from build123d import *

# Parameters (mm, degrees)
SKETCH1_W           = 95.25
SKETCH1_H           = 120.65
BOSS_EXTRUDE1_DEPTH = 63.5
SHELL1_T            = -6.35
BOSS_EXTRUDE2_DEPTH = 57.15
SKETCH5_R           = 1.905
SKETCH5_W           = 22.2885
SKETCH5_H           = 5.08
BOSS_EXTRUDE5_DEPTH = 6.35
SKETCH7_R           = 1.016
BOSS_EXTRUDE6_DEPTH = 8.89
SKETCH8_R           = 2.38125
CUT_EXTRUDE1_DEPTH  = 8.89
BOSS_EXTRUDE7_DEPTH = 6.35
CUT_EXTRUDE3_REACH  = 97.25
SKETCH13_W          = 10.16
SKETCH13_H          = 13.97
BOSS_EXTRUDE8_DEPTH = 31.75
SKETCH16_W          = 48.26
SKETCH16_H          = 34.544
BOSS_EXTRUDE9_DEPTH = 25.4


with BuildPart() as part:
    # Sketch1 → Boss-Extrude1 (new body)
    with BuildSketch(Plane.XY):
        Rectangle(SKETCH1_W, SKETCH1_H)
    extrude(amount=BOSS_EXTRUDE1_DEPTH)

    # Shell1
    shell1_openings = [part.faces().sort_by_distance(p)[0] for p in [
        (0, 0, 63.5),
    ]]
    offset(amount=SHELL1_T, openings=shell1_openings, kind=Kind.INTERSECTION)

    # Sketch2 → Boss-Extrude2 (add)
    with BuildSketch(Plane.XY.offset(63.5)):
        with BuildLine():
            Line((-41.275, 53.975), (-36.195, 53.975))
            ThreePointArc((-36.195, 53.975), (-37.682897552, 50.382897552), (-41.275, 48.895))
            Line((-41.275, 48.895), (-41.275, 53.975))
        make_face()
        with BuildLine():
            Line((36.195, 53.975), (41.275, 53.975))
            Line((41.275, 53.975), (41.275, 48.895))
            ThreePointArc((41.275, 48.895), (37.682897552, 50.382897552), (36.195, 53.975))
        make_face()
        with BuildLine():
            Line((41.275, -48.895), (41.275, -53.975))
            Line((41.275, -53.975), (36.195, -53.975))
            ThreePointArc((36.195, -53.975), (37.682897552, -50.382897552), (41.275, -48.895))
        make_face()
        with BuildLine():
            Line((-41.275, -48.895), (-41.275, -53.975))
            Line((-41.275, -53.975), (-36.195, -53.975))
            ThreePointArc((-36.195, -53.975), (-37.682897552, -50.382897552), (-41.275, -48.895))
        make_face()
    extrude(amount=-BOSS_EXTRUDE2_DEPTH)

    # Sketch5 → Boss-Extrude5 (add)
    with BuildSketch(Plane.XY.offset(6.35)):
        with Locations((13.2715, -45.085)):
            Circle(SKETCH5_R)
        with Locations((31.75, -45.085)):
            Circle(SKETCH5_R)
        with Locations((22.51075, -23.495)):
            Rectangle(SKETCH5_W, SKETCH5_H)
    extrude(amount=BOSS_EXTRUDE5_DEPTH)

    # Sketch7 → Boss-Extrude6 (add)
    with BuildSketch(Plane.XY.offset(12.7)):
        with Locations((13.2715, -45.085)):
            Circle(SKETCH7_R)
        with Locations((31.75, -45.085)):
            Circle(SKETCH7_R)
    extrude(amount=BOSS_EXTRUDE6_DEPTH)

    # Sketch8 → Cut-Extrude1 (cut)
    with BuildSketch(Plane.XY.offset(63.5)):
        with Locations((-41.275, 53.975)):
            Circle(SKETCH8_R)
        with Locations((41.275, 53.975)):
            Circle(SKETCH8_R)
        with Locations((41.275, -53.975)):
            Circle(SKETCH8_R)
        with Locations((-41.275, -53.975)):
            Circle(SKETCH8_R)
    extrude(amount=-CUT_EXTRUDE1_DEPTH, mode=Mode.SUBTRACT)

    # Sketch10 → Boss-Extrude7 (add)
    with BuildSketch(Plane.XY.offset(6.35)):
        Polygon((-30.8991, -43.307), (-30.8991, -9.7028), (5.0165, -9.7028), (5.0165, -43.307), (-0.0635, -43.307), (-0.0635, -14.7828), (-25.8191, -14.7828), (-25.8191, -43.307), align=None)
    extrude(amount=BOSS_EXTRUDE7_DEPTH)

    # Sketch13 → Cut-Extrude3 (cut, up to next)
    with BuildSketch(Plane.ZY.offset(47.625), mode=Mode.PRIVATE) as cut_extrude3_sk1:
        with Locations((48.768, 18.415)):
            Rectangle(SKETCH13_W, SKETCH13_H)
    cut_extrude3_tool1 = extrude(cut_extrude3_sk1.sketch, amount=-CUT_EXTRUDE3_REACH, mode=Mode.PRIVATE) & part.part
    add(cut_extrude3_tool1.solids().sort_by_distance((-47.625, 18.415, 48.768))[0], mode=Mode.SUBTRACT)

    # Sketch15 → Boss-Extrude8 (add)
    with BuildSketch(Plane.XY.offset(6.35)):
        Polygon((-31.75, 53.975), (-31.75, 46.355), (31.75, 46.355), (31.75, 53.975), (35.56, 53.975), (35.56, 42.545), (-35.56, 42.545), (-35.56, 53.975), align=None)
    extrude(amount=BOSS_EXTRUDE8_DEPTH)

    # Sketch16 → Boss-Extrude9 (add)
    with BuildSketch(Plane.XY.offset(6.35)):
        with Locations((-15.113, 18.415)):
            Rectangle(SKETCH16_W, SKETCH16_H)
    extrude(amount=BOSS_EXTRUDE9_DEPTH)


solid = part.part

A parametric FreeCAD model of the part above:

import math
import FreeCAD as App
import Part
import Sketcher
Q = App.Units.Quantity


def faces_at(feature, points):
    """Names of the faces that lie closest to the given points."""
    faces = feature.Shape.Faces
    near = lambda p: min(range(len(faces)), key=lambda i: faces[i].distToShape(Part.Vertex(*p))[0])
    return sorted({f"Face{near(p) + 1}" for p in points})

doc = App.newDocument("Part")
body = doc.addObject("PartDesign::Body", "Body")

sketch1 = body.newObject("Sketcher::SketchObject", "Sketch")
sketch1.AttachmentSupport = (doc.getObject("XY_Plane"), [""])
sketch1.MapMode = "FlatFace"
sketch1.addGeometry([
    Part.LineSegment(App.Vector(-48, 60, 0), App.Vector(-48, -60, 0)),
    Part.LineSegment(App.Vector(-48, -60, 0), App.Vector(48, -60, 0)),
    Part.LineSegment(App.Vector(48, -60, 0), App.Vector(48, 60, 0)),
    Part.LineSegment(App.Vector(48, 60, 0), App.Vector(-48, 60, 0)),
], False)
sketch1.addConstraint([
    Sketcher.Constraint("Coincident", 0, 2, 1, 1),
    Sketcher.Constraint("Coincident", 1, 2, 2, 1),
    Sketcher.Constraint("Coincident", 2, 2, 3, 1),
    Sketcher.Constraint("Coincident", 3, 2, 0, 1),
    Sketcher.Constraint("Vertical", 0),
    Sketcher.Constraint("Horizontal", 1),
    Sketcher.Constraint("Vertical", 2),
    Sketcher.Constraint("Horizontal", 3),
    Sketcher.Constraint("Symmetric", 0, 2, 2, 2, -1, 1),
    Sketcher.Constraint("DistanceX", 1, 1, 1, 2, Q("3.75 in")),
    Sketcher.Constraint("DistanceY", 0, 2, 0, 1, Q("4.75 in")),
])
pad1 = body.newObject("PartDesign::Pad", "Pad")
pad1.Profile = sketch1
pad1.Length = Q("2.5 in")
doc.recompute()

thickness = body.newObject("PartDesign::Thickness", "Thickness")
thickness.Base = (pad1, faces_at(pad1, [(0, 0, 63.5)]))
thickness.Value = Q("0.25 in")
thickness.Reversed = True
thickness.Join = "Intersection"

sketch2 = body.newObject("Sketcher::SketchObject", "Sketch001")
sketch2.AttachmentSupport = (doc.getObject("XY_Plane"), [""])
sketch2.MapMode = "FlatFace"
sketch2.AttachmentOffset = App.Placement(App.Vector(0, 0, 2.5 * 25.4), App.Rotation())
sketch2.addGeometry([
    Part.LineSegment(App.Vector(-36, 54, 0), App.Vector(-41, 54, 0)),
    Part.LineSegment(App.Vector(-41, 54, 0), App.Vector(-41, 49, 0)),
    Part.ArcOfCircle(Part.Circle(App.Vector(-41, 54, 0), App.Vector(0, 0, 1), 5), math.radians(-90), math.radians(0)),
    Part.LineSegment(App.Vector(41, 54, 0), App.Vector(36, 54, 0)),
    Part.ArcOfCircle(Part.Circle(App.Vector(41, 54, 0), App.Vector(0, 0, 1), 5), math.radians(-180), math.radians(-90)),
    Part.LineSegment(App.Vector(41, 49, 0), App.Vector(41, 54, 0)),
    Part.LineSegment(App.Vector(41, -54, 0), App.Vector(41, -49, 0)),
    Part.ArcOfCircle(Part.Circle(App.Vector(41, -54, 0), App.Vector(0, 0, 1), 5), math.radians(90), math.radians(180)),
    Part.LineSegment(App.Vector(36, -54, 0), App.Vector(41, -54, 0)),
    Part.LineSegment(App.Vector(-41, -49, 0), App.Vector(-41, -54, 0)),
    Part.LineSegment(App.Vector(-41, -54, 0), App.Vector(-36, -54, 0)),
    Part.ArcOfCircle(Part.Circle(App.Vector(-41, -54, 0), App.Vector(0, 0, 1), 5), math.radians(0), math.radians(90)),
], False)
sketch2.addConstraint([
    Sketcher.Constraint("Coincident", 0, 2, 1, 1),
    Sketcher.Constraint("Coincident", 1, 2, 2, 1),
    Sketcher.Constraint("Coincident", 2, 2, 0, 1),
    Sketcher.Constraint("Coincident", 3, 2, 4, 1),
    Sketcher.Constraint("Coincident", 4, 2, 5, 1),
    Sketcher.Constraint("Coincident", 5, 2, 3, 1),
    Sketcher.Constraint("Coincident", 6, 2, 7, 1),
    Sketcher.Constraint("Coincident", 7, 2, 8, 1),
    Sketcher.Constraint("Coincident", 8, 2, 6, 1),
    Sketcher.Constraint("Coincident", 9, 2, 10, 1),
    Sketcher.Constraint("Coincident", 10, 2, 11, 1),
    Sketcher.Constraint("Coincident", 11, 2, 9, 1),
    Sketcher.Constraint("Horizontal", 0),
    Sketcher.Constraint("Vertical", 1),
    Sketcher.Constraint("Horizontal", 3),
    Sketcher.Constraint("Vertical", 5),
    Sketcher.Constraint("Vertical", 6),
    Sketcher.Constraint("Horizontal", 8),
    Sketcher.Constraint("Vertical", 9),
    Sketcher.Constraint("Horizontal", 10),
    Sketcher.Constraint("Coincident", 0, 2, 2, 3),
    Sketcher.Constraint("Coincident", 5, 2, 4, 3),
    Sketcher.Constraint("Coincident", 8, 2, 7, 3),
    Sketcher.Constraint("Coincident", 9, 2, 11, 3),
    Sketcher.Constraint("Equal", 2, 4),
    Sketcher.Constraint("Equal", 4, 7),
    Sketcher.Constraint("Equal", 7, 11),
    Sketcher.Constraint("Symmetric", 2, 3, 7, 3, -1, 1),
    Sketcher.Constraint("Symmetric", 4, 3, 11, 3, -1, 1),
    Sketcher.Constraint("Symmetric", 2, 3, 4, 3, -2),
    Sketcher.Constraint("Radius", 2, Q("0.2 in")),
    Sketcher.Constraint("DistanceX", 2, 3, 4, 3, Q("3.25 in")),
    Sketcher.Constraint("DistanceY", 7, 3, 4, 3, Q("4.25 in")),
])
pad2 = body.newObject("PartDesign::Pad", "Pad001")
pad2.Profile = sketch2
pad2.Length = Q("2.25 in")
pad2.Reversed = True

sketch3 = body.newObject("Sketcher::SketchObject", "Sketch002")
sketch3.AttachmentSupport = (doc.getObject("XY_Plane"), [""])
sketch3.MapMode = "FlatFace"
sketch3.AttachmentOffset = App.Placement(App.Vector(0, 0, 0.25 * 25.4), App.Rotation())
sketch3.addGeometry([
    Part.Circle(App.Vector(13.3, -45.1, 0), App.Vector(0, 0, 1), 1.9),
    Part.Circle(App.Vector(31.8, -45.1, 0), App.Vector(0, 0, 1), 1.9),
    Part.LineSegment(App.Vector(11.4, -21, 0), App.Vector(11.4, -26, 0)),
    Part.LineSegment(App.Vector(11.4, -26, 0), App.Vector(33.7, -26, 0)),
    Part.LineSegment(App.Vector(33.7, -26, 0), App.Vector(33.7, -21, 0)),
    Part.LineSegment(App.Vector(33.7, -21, 0), App.Vector(11.4, -21, 0)),
], False)
sketch3.addConstraint([
    Sketcher.Constraint("Coincident", 2, 2, 3, 1),
    Sketcher.Constraint("Coincident", 3, 2, 4, 1),
    Sketcher.Constraint("Coincident", 4, 2, 5, 1),
    Sketcher.Constraint("Coincident", 5, 2, 2, 1),
    Sketcher.Constraint("Vertical", 2),
    Sketcher.Constraint("Horizontal", 3),
    Sketcher.Constraint("Vertical", 4),
    Sketcher.Constraint("Horizontal", 5),
    Sketcher.Constraint("Equal", 0, 1),
    Sketcher.Constraint("Horizontal", 0, 3, 1, 3),
    Sketcher.Constraint("Diameter", 0, Q("0.15 in")),
    Sketcher.Constraint("DistanceY", 2, 2, 2, 1, Q("0.2 in")),
    Sketcher.Constraint("DistanceX", -1, 1, 1, 3, Q("1.25 in")),
    Sketcher.Constraint("DistanceY", 0, 3, 2, 2, Q("0.75 in")),
    Sketcher.Constraint("DistanceX", 3, 1, 3, 2, Q("0.8775 in")),
    Sketcher.Constraint("DistanceY", 0, 3, -1, 1, Q("1.775 in")),
    Sketcher.Constraint("DistanceX", -1, 1, 3, 2, Q("1.325 in")),
    Sketcher.Constraint("DistanceX", 2, 2, 0, 3, Q("0.075 in")),
])
pad3 = body.newObject("PartDesign::Pad", "Pad002")
pad3.Profile = sketch3
pad3.Length = Q("0.25 in")

sketch4 = body.newObject("Sketcher::SketchObject", "Sketch003")
sketch4.AttachmentSupport = (doc.getObject("XY_Plane"), [""])
sketch4.MapMode = "FlatFace"
sketch4.AttachmentOffset = App.Placement(App.Vector(0, 0, 0.5 * 25.4), App.Rotation())
sketch4.addGeometry([
    Part.Circle(App.Vector(13.3, -45.1, 0), App.Vector(0, 0, 1), 1),
    Part.Circle(App.Vector(31.8, -45.1, 0), App.Vector(0, 0, 1), 1),
], False)
sketch4.addConstraint([
    Sketcher.Constraint("Equal", 0, 1),
    Sketcher.Constraint("Horizontal", 0, 3, 1, 3),
    Sketcher.Constraint("Diameter", 0, Q("0.08 in")),
    Sketcher.Constraint("DistanceX", -1, 1, 1, 3, Q("1.25 in")),
    Sketcher.Constraint("DistanceY", 0, 3, -1, 1, Q("1.775 in")),
    Sketcher.Constraint("DistanceX", -1, 1, 0, 3, Q("0.5225 in")),
])
pad4 = body.newObject("PartDesign::Pad", "Pad003")
pad4.Profile = sketch4
pad4.Length = Q("0.35 in")

sketch5 = body.newObject("Sketcher::SketchObject", "Sketch004")
sketch5.AttachmentSupport = (doc.getObject("XY_Plane"), [""])
sketch5.MapMode = "FlatFace"
sketch5.AttachmentOffset = App.Placement(App.Vector(0, 0, 2.5 * 25.4), App.Rotation())
sketch5.addGeometry([
    Part.Circle(App.Vector(-41.3, 54, 0), App.Vector(0, 0, 1), 2.4),
    Part.Circle(App.Vector(41.3, 54, 0), App.Vector(0, 0, 1), 2.4),
    Part.Circle(App.Vector(41.3, -54, 0), App.Vector(0, 0, 1), 2.4),
    Part.Circle(App.Vector(-41.3, -54, 0), App.Vector(0, 0, 1), 2.4),
], False)
sketch5.addConstraint([
    Sketcher.Constraint("Equal", 0, 1),
    Sketcher.Constraint("Equal", 1, 2),
    Sketcher.Constraint("Equal", 2, 3),
    Sketcher.Constraint("Symmetric", 0, 3, 2, 3, -1, 1),
    Sketcher.Constraint("Symmetric", 1, 3, 3, 3, -1, 1),
    Sketcher.Constraint("Symmetric", 0, 3, 1, 3, -2),
    Sketcher.Constraint("Diameter", 0, Q("0.1875 in")),
    Sketcher.Constraint("DistanceX", 0, 3, 1, 3, Q("3.25 in")),
    Sketcher.Constraint("DistanceY", 2, 3, 1, 3, Q("4.25 in")),
])
pocket1 = body.newObject("PartDesign::Pocket", "Pocket")
pocket1.Profile = sketch5
pocket1.Length = Q("0.35 in")

sketch6 = body.newObject("Sketcher::SketchObject", "Sketch005")
sketch6.AttachmentSupport = (doc.getObject("XY_Plane"), [""])
sketch6.MapMode = "FlatFace"
sketch6.AttachmentOffset = App.Placement(App.Vector(0, 0, 0.25 * 25.4), App.Rotation())
sketch6.addGeometry([
    Part.LineSegment(App.Vector(-31, -10, 0), App.Vector(-31, -43, 0)),
    Part.LineSegment(App.Vector(-31, -43, 0), App.Vector(-26, -43, 0)),
    Part.LineSegment(App.Vector(-26, -43, 0), App.Vector(-26, -15, 0)),
    Part.LineSegment(App.Vector(-26, -15, 0), App.Vector(0, -15, 0)),
    Part.LineSegment(App.Vector(0, -15, 0), App.Vector(0, -43, 0)),
    Part.LineSegment(App.Vector(0, -43, 0), App.Vector(5, -43, 0)),
    Part.LineSegment(App.Vector(5, -43, 0), App.Vector(5, -10, 0)),
    Part.LineSegment(App.Vector(5, -10, 0), App.Vector(-31, -10, 0)),
], False)
sketch6.addConstraint([
    Sketcher.Constraint("Coincident", 0, 2, 1, 1),
    Sketcher.Constraint("Coincident", 1, 2, 2, 1),
    Sketcher.Constraint("Coincident", 2, 2, 3, 1),
    Sketcher.Constraint("Coincident", 3, 2, 4, 1),
    Sketcher.Constraint("Coincident", 4, 2, 5, 1),
    Sketcher.Constraint("Coincident", 5, 2, 6, 1),
    Sketcher.Constraint("Coincident", 6, 2, 7, 1),
    Sketcher.Constraint("Coincident", 7, 2, 0, 1),
    Sketcher.Constraint("Vertical", 0),
    Sketcher.Constraint("Horizontal", 1),
    Sketcher.Constraint("Vertical", 2),
    Sketcher.Constraint("Horizontal", 3),
    Sketcher.Constraint("Vertical", 4),
    Sketcher.Constraint("Horizontal", 5),
    Sketcher.Constraint("Vertical", 6),
    Sketcher.Constraint("Horizontal", 7),
    Sketcher.Constraint("Horizontal", 1, 2, 4, 2),
    Sketcher.Constraint("Equal", 1, 5),
    Sketcher.Constraint("DistanceX", 1, 1, 1, 2, Q("0.2 in")),
    Sketcher.Constraint("DistanceY", 3, 2, 6, 2, Q("0.2 in")),
    Sketcher.Constraint("DistanceX", 3, 1, 3, 2, Q("1.014 in")),
    Sketcher.Constraint("DistanceY", 0, 2, 0, 1, Q("1.323 in")),
    Sketcher.Constraint("DistanceY", 0, 2, -1, 1, Q("1.705 in")),
    Sketcher.Constraint("DistanceX", 0, 2, -1, 1, Q("1.2165 in")),
])
pad5 = body.newObject("PartDesign::Pad", "Pad004")
pad5.Profile = sketch6
pad5.Length = Q("0.25 in")

sketch7 = body.newObject("Sketcher::SketchObject", "Sketch006")
sketch7.AttachmentSupport = (doc.getObject("YZ_Plane"), [""])
sketch7.MapMode = "FlatFace"
sketch7.AttachmentOffset = App.Placement(App.Vector(0, 0, -1.875 * 25.4), App.Rotation())
sketch7.addGeometry([
    Part.LineSegment(App.Vector(25, 44, 0), App.Vector(11, 44, 0)),
    Part.LineSegment(App.Vector(11, 44, 0), App.Vector(11, 54, 0)),
    Part.LineSegment(App.Vector(11, 54, 0), App.Vector(25, 54, 0)),
    Part.LineSegment(App.Vector(25, 54, 0), App.Vector(25, 44, 0)),
], False)
sketch7.addConstraint([
    Sketcher.Constraint("Coincident", 0, 2, 1, 1),
    Sketcher.Constraint("Coincident", 1, 2, 2, 1),
    Sketcher.Constraint("Coincident", 2, 2, 3, 1),
    Sketcher.Constraint("Coincident", 3, 2, 0, 1),
    Sketcher.Constraint("Horizontal", 0),
    Sketcher.Constraint("Vertical", 1),
    Sketcher.Constraint("Horizontal", 2),
    Sketcher.Constraint("Vertical", 3),
    Sketcher.Constraint("DistanceY", 1, 1, 1, 2, Q("0.4 in")),
    Sketcher.Constraint("DistanceX", -1, 1, 2, 2, Q("1 in")),
    Sketcher.Constraint("DistanceX", 0, 2, 0, 1, Q("0.55 in")),
    Sketcher.Constraint("DistanceY", -1, 1, 0, 2, Q("1.72 in")),
])
pocket2 = body.newObject("PartDesign::Pocket", "Pocket001")
pocket2.Profile = sketch7
pocket2.Type = "UpToFirst"
pocket2.Reversed = True

sketch8 = body.newObject("Sketcher::SketchObject", "Sketch007")
sketch8.AttachmentSupport = (doc.getObject("XY_Plane"), [""])
sketch8.MapMode = "FlatFace"
sketch8.AttachmentOffset = App.Placement(App.Vector(0, 0, 0.25 * 25.4), App.Rotation())
sketch8.addGeometry([
    Part.LineSegment(App.Vector(-31.8, 46.4, 0), App.Vector(-31.8, 54, 0)),
    Part.LineSegment(App.Vector(-31.8, 54, 0), App.Vector(-35.6, 54, 0)),
    Part.LineSegment(App.Vector(-35.6, 54, 0), App.Vector(-35.6, 42.5, 0)),
    Part.LineSegment(App.Vector(-35.6, 42.5, 0), App.Vector(35.6, 42.5, 0)),
    Part.LineSegment(App.Vector(35.6, 42.5, 0), App.Vector(35.6, 54, 0)),
    Part.LineSegment(App.Vector(35.6, 54, 0), App.Vector(31.8, 54, 0)),
    Part.LineSegment(App.Vector(31.8, 54, 0), App.Vector(31.8, 46.4, 0)),
    Part.LineSegment(App.Vector(31.8, 46.4, 0), App.Vector(-31.8, 46.4, 0)),
], False)
sketch8.addConstraint([
    Sketcher.Constraint("Coincident", 0, 2, 1, 1),
    Sketcher.Constraint("Coincident", 1, 2, 2, 1),
    Sketcher.Constraint("Coincident", 2, 2, 3, 1),
    Sketcher.Constraint("Coincident", 3, 2, 4, 1),
    Sketcher.Constraint("Coincident", 4, 2, 5, 1),
    Sketcher.Constraint("Coincident", 5, 2, 6, 1),
    Sketcher.Constraint("Coincident", 6, 2, 7, 1),
    Sketcher.Constraint("Coincident", 7, 2, 0, 1),
    Sketcher.Constraint("Vertical", 0),
    Sketcher.Constraint("Horizontal", 1),
    Sketcher.Constraint("Vertical", 2),
    Sketcher.Constraint("Horizontal", 3),
    Sketcher.Constraint("Vertical", 4),
    Sketcher.Constraint("Horizontal", 5),
    Sketcher.Constraint("Vertical", 6),
    Sketcher.Constraint("Horizontal", 7),
    Sketcher.Constraint("Symmetric", 1, 2, 4, 2, -2),
    Sketcher.Constraint("Equal", 1, 5),
    Sketcher.Constraint("DistanceX", 3, 1, 3, 2, Q("2.8 in")),
    Sketcher.Constraint("DistanceX", 7, 2, 7, 1, Q("2.5 in")),
    Sketcher.Constraint("DistanceY", 0, 1, 0, 2, Q("0.3 in")),
    Sketcher.Constraint("DistanceY", 2, 2, 2, 1, Q("0.45 in")),
    Sketcher.Constraint("DistanceY", -1, 1, 0, 2, Q("2.125 in")),
])
pad6 = body.newObject("PartDesign::Pad", "Pad005")
pad6.Profile = sketch8
pad6.Length = Q("1.25 in")

sketch9 = body.newObject("Sketcher::SketchObject", "Sketch008")
sketch9.AttachmentSupport = (doc.getObject("XY_Plane"), [""])
sketch9.MapMode = "FlatFace"
sketch9.AttachmentOffset = App.Placement(App.Vector(0, 0, 0.25 * 25.4), App.Rotation())
sketch9.addGeometry([
    Part.LineSegment(App.Vector(-39, 36, 0), App.Vector(-39, 1, 0)),
    Part.LineSegment(App.Vector(-39, 1, 0), App.Vector(9, 1, 0)),
    Part.LineSegment(App.Vector(9, 1, 0), App.Vector(9, 36, 0)),
    Part.LineSegment(App.Vector(9, 36, 0), App.Vector(-39, 36, 0)),
], False)
sketch9.addConstraint([
    Sketcher.Constraint("Coincident", 0, 2, 1, 1),
    Sketcher.Constraint("Coincident", 1, 2, 2, 1),
    Sketcher.Constraint("Coincident", 2, 2, 3, 1),
    Sketcher.Constraint("Coincident", 3, 2, 0, 1),
    Sketcher.Constraint("Vertical", 0),
    Sketcher.Constraint("Horizontal", 1),
    Sketcher.Constraint("Vertical", 2),
    Sketcher.Constraint("Horizontal", 3),
    Sketcher.Constraint("DistanceX", 1, 1, 1, 2, Q("1.9 in")),
    Sketcher.Constraint("DistanceY", 0, 2, 0, 1, Q("1.36 in")),
    Sketcher.Constraint("DistanceX", 0, 2, -1, 1, Q("1.545 in")),
    Sketcher.Constraint("DistanceY", -1, 1, 0, 2, Q("0.045 in")),
])
pad7 = body.newObject("PartDesign::Pad", "Pad006")
pad7.Profile = sketch9
pad7.Length = Q("1 in")

doc.recompute()
